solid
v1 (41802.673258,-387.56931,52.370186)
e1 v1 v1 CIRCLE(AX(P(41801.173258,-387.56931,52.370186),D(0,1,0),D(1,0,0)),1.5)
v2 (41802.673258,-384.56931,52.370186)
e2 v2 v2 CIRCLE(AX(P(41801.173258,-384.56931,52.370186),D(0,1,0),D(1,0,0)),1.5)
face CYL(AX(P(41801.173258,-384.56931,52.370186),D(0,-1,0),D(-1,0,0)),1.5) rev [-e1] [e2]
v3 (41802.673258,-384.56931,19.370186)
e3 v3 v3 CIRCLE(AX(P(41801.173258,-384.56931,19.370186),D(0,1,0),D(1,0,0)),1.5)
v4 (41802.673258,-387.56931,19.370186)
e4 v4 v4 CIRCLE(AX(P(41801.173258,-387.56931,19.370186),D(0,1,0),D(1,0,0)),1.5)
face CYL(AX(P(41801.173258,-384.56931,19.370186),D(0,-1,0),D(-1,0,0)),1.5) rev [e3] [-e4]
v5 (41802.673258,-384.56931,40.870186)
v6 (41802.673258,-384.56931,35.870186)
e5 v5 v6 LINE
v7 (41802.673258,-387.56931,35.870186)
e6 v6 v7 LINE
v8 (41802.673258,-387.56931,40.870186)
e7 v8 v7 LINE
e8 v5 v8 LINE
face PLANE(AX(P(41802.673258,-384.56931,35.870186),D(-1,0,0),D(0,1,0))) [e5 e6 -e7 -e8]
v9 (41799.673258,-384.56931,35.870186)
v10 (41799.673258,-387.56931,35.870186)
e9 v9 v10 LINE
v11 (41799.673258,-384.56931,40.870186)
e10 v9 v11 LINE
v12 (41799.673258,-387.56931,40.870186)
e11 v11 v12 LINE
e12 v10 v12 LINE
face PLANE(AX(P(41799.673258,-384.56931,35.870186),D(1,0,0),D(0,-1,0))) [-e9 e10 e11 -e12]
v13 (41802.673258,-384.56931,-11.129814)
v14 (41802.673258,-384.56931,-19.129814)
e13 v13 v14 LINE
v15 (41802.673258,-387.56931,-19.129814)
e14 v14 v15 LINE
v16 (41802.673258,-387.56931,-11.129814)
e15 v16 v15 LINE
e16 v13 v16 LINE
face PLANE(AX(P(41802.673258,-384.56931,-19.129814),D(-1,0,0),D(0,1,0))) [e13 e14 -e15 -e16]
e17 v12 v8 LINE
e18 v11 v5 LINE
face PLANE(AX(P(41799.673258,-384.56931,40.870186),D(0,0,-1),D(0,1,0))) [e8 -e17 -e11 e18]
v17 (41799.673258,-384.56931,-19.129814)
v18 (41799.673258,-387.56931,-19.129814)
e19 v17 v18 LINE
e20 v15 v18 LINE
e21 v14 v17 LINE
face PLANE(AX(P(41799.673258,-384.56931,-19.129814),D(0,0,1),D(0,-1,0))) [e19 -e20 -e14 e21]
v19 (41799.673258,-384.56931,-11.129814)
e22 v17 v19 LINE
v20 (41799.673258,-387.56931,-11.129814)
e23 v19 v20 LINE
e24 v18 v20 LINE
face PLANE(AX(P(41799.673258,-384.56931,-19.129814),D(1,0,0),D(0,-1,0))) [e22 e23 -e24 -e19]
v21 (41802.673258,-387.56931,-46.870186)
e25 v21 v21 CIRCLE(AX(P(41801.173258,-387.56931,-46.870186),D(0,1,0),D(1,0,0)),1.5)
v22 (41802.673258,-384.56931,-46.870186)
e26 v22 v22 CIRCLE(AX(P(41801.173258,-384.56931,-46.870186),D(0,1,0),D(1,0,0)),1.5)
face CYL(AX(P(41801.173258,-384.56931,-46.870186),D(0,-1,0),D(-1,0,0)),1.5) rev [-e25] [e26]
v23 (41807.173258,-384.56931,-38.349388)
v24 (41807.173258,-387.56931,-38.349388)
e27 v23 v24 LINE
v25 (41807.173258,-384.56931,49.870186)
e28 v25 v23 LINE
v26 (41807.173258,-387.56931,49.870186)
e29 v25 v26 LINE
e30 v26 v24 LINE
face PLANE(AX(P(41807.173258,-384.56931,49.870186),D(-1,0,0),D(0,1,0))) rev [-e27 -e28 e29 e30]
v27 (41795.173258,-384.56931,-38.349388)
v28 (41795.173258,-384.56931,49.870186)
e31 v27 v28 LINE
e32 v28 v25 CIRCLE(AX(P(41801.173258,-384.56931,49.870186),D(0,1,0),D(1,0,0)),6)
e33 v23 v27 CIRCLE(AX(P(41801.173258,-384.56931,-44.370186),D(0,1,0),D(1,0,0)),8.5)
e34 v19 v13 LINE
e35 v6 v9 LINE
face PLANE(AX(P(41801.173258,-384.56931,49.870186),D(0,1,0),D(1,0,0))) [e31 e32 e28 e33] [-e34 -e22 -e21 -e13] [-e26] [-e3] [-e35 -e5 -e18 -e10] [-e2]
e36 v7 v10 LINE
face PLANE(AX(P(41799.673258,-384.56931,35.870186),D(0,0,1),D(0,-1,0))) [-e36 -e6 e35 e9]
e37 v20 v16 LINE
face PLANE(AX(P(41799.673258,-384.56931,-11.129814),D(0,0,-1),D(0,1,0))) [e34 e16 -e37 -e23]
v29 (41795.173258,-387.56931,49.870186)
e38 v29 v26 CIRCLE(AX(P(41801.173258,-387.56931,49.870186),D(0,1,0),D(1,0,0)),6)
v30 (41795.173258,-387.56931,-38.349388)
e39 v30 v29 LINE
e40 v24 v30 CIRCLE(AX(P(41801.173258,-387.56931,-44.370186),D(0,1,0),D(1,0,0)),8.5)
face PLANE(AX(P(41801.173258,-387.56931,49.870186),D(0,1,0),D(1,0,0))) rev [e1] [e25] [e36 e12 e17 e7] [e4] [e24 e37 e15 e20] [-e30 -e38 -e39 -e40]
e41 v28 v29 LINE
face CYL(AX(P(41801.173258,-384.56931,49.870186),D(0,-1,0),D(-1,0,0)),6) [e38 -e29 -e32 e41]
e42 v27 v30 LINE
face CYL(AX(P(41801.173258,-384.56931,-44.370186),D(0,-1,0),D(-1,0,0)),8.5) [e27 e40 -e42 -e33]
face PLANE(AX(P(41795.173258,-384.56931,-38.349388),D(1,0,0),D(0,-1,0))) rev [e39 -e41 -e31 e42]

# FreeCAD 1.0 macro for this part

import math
import FreeCAD as App
import Part
import Sketcher
from FreeCAD import Vector

doc = App.newDocument("Part")
body = doc.addObject("PartDesign::Body", "Body")

# Sketch on XY plane
sketch1 = body.newObject("Sketcher::SketchObject", "Sketch")
sketch1.AttachmentSupport = (doc.getObject("XY_Plane"), [""])
sketch1.MapMode = "FlatFace"
sketch1.addGeometry(Part.LineSegment(Vector(41807.173258, -434.439495, 0), Vector(41807.173258, -346.219921, 0)), False)
sketch1.addGeometry(Part.ArcOfCircle(Part.Circle(Vector(41801.173258, -340.199124, 0), Vector(0, 0, 1), 8.5), math.radians(-45.099128), math.radians(225.099128)), False)
sketch1.addGeometry(Part.LineSegment(Vector(41795.173258, -346.219921, 0), Vector(41795.173258, -434.439495, 0)), False)
sketch1.addGeometry(Part.ArcOfCircle(Part.Circle(Vector(41801.173258, -434.439495, 0), Vector(0, 0, 1), 6), math.radians(180), math.radians(360)), False)
sketch1.addGeometry(Part.Circle(Vector(41801.173258, -436.939495, 0), Vector(0, 0, 1), 1.5), False)
sketch1.addGeometry(Part.LineSegment(Vector(41802.673258, -425.439495, 0), Vector(41799.673258, -425.439495, 0)), False)
sketch1.addGeometry(Part.LineSegment(Vector(41799.673258, -425.439495, 0), Vector(41799.673258, -420.439495, 0)), False)
sketch1.addGeometry(Part.LineSegment(Vector(41799.673258, -420.439495, 0), Vector(41802.673258, -420.439495, 0)), False)
sketch1.addGeometry(Part.LineSegment(Vector(41802.673258, -420.439495, 0), Vector(41802.673258, -425.439495, 0)), False)
sketch1.addGeometry(Part.Circle(Vector(41801.173258, -403.939495, 0), Vector(0, 0, 1), 1.5), False)
sketch1.addGeometry(Part.LineSegment(Vector(41802.673258, -373.439495, 0), Vector(41799.673258, -373.439495, 0)), False)
sketch1.addGeometry(Part.LineSegment(Vector(41799.673258, -373.439495, 0), Vector(41799.673258, -365.439495, 0)), False)
sketch1.addGeometry(Part.LineSegment(Vector(41799.673258, -365.439495, 0), Vector(41802.673258, -365.439495, 0)), False)
sketch1.addGeometry(Part.LineSegment(Vector(41802.673258, -365.439495, 0), Vector(41802.673258, -373.439495, 0)), False)
sketch1.addGeometry(Part.Circle(Vector(41801.173258, -337.699124, 0), Vector(0, 0, 1), 1.5), False)
sketch1.addConstraint(Sketcher.Constraint("Coincident", 0, 2, 1, 1))
sketch1.addConstraint(Sketcher.Constraint("Coincident", 1, 2, 2, 1))
sketch1.addConstraint(Sketcher.Constraint("Tangent", 2, 2, 3, 1))
sketch1.addConstraint(Sketcher.Constraint("Tangent", 3, 2, 0, 1))
sketch1.addConstraint(Sketcher.Constraint("Coincident", 5, 2, 6, 1))
sketch1.addConstraint(Sketcher.Constraint("Coincident", 6, 2, 7, 1))
sketch1.addConstraint(Sketcher.Constraint("Coincident", 7, 2, 8, 1))
sketch1.addConstraint(Sketcher.Constraint("Coincident", 8, 2, 5, 1))
sketch1.addConstraint(Sketcher.Constraint("Coincident", 10, 2, 11, 1))
sketch1.addConstraint(Sketcher.Constraint("Coincident", 11, 2, 12, 1))
sketch1.addConstraint(Sketcher.Constraint("Coincident", 12, 2, 13, 1))
sketch1.addConstraint(Sketcher.Constraint("Coincident", 13, 2, 10, 1))
sketch1.addConstraint(Sketcher.Constraint("Vertical", 0))
sketch1.addConstraint(Sketcher.Constraint("Vertical", 2))
sketch1.addConstraint(Sketcher.Constraint("Horizontal", 5))
sketch1.addConstraint(Sketcher.Constraint("Vertical", 6))
sketch1.addConstraint(Sketcher.Constraint("Horizontal", 7))
sketch1.addConstraint(Sketcher.Constraint("Vertical", 8))
sketch1.addConstraint(Sketcher.Constraint("Horizontal", 10))
sketch1.addConstraint(Sketcher.Constraint("Vertical", 11))
sketch1.addConstraint(Sketcher.Constraint("Horizontal", 12))
sketch1.addConstraint(Sketcher.Constraint("Vertical", 13))
sketch1.addConstraint(Sketcher.Constraint("Equal", 4, 9))
sketch1.addConstraint(Sketcher.Constraint("Equal", 9, 14))
sketch1.addConstraint(Sketcher.Constraint("Horizontal", 0, 2, 1, 2))
sketch1.addConstraint(Sketcher.Constraint("Vertical", 3, 3, 4, 3))
sketch1.addConstraint(Sketcher.Constraint("Vertical", 4, 3, 9, 3))
sketch1.addConstraint(Sketcher.Constraint("Vertical", 9, 3, 14, 3))
sketch1.addConstraint(Sketcher.Constraint("Vertical", 6, 2, 10, 2))
sketch1.addConstraint(Sketcher.Constraint("Vertical", 8, 2, 12, 2))
sketch1.addConstraint(Sketcher.Constraint("Diameter", 4, 3.0))
sketch1.addConstraint(Sketcher.Constraint("Radius", 3, 6.0))
sketch1.addConstraint(Sketcher.Constraint("Radius", 1, 8.5))
sketch1.addConstraint(Sketcher.Constraint("DistanceX", 5, 2, 5, 1, 3.0))
sketch1.addConstraint(Sketcher.Constraint("DistanceY", 6, 1, 6, 2, 5.0))
sketch1.addConstraint(Sketcher.Constraint("DistanceY", 11, 1, 11, 2, 8.0))
sketch1.addConstraint(Sketcher.Constraint("DistanceY", 4, 3, 9, 3, 33.0))
sketch1.addConstraint(Sketcher.Constraint("DistanceY", 3, 3, 5, 2, 9.0))
sketch1.addConstraint(Sketcher.Constraint("DistanceY", 4, 3, 3, 3, 2.5))
sketch1.addConstraint(Sketcher.Constraint("DistanceY", 1, 3, 14, 3, 2.5))
sketch1.addConstraint(Sketcher.Constraint("DistanceX", 5, 2, 3, 3, 1.5))
sketch1.addConstraint(Sketcher.Constraint("DistanceY", 9, 3, 10, 2, 30.5))
sketch1.addConstraint(Sketcher.Constraint("DistanceY", 0, 1, 0, 2, 88.219574))
sketch1.addConstraint(Sketcher.Constraint("DistanceY", 0, 2, -1, 1, 346.219921))
sketch1.addConstraint(Sketcher.Constraint("DistanceX", -1, 1, 1, 3, 41801.173258))
pad1 = body.newObject("PartDesign::Pad", "Pad")
pad1.Profile = sketch1
pad1.Length = 3
body2 = doc.addObject("PartDesign::Body", "Body001")
doc.recompute()

body.Placement = App.Placement(Vector(0, -387.56931, -384.56931), App.Rotation(Vector(-1, 0, 0), 90))
boolean = body2.newObject("PartDesign::Boolean", "Boolean")
boolean.Type = "Fuse"
boolean.addObjects([body])

doc.recompute()
